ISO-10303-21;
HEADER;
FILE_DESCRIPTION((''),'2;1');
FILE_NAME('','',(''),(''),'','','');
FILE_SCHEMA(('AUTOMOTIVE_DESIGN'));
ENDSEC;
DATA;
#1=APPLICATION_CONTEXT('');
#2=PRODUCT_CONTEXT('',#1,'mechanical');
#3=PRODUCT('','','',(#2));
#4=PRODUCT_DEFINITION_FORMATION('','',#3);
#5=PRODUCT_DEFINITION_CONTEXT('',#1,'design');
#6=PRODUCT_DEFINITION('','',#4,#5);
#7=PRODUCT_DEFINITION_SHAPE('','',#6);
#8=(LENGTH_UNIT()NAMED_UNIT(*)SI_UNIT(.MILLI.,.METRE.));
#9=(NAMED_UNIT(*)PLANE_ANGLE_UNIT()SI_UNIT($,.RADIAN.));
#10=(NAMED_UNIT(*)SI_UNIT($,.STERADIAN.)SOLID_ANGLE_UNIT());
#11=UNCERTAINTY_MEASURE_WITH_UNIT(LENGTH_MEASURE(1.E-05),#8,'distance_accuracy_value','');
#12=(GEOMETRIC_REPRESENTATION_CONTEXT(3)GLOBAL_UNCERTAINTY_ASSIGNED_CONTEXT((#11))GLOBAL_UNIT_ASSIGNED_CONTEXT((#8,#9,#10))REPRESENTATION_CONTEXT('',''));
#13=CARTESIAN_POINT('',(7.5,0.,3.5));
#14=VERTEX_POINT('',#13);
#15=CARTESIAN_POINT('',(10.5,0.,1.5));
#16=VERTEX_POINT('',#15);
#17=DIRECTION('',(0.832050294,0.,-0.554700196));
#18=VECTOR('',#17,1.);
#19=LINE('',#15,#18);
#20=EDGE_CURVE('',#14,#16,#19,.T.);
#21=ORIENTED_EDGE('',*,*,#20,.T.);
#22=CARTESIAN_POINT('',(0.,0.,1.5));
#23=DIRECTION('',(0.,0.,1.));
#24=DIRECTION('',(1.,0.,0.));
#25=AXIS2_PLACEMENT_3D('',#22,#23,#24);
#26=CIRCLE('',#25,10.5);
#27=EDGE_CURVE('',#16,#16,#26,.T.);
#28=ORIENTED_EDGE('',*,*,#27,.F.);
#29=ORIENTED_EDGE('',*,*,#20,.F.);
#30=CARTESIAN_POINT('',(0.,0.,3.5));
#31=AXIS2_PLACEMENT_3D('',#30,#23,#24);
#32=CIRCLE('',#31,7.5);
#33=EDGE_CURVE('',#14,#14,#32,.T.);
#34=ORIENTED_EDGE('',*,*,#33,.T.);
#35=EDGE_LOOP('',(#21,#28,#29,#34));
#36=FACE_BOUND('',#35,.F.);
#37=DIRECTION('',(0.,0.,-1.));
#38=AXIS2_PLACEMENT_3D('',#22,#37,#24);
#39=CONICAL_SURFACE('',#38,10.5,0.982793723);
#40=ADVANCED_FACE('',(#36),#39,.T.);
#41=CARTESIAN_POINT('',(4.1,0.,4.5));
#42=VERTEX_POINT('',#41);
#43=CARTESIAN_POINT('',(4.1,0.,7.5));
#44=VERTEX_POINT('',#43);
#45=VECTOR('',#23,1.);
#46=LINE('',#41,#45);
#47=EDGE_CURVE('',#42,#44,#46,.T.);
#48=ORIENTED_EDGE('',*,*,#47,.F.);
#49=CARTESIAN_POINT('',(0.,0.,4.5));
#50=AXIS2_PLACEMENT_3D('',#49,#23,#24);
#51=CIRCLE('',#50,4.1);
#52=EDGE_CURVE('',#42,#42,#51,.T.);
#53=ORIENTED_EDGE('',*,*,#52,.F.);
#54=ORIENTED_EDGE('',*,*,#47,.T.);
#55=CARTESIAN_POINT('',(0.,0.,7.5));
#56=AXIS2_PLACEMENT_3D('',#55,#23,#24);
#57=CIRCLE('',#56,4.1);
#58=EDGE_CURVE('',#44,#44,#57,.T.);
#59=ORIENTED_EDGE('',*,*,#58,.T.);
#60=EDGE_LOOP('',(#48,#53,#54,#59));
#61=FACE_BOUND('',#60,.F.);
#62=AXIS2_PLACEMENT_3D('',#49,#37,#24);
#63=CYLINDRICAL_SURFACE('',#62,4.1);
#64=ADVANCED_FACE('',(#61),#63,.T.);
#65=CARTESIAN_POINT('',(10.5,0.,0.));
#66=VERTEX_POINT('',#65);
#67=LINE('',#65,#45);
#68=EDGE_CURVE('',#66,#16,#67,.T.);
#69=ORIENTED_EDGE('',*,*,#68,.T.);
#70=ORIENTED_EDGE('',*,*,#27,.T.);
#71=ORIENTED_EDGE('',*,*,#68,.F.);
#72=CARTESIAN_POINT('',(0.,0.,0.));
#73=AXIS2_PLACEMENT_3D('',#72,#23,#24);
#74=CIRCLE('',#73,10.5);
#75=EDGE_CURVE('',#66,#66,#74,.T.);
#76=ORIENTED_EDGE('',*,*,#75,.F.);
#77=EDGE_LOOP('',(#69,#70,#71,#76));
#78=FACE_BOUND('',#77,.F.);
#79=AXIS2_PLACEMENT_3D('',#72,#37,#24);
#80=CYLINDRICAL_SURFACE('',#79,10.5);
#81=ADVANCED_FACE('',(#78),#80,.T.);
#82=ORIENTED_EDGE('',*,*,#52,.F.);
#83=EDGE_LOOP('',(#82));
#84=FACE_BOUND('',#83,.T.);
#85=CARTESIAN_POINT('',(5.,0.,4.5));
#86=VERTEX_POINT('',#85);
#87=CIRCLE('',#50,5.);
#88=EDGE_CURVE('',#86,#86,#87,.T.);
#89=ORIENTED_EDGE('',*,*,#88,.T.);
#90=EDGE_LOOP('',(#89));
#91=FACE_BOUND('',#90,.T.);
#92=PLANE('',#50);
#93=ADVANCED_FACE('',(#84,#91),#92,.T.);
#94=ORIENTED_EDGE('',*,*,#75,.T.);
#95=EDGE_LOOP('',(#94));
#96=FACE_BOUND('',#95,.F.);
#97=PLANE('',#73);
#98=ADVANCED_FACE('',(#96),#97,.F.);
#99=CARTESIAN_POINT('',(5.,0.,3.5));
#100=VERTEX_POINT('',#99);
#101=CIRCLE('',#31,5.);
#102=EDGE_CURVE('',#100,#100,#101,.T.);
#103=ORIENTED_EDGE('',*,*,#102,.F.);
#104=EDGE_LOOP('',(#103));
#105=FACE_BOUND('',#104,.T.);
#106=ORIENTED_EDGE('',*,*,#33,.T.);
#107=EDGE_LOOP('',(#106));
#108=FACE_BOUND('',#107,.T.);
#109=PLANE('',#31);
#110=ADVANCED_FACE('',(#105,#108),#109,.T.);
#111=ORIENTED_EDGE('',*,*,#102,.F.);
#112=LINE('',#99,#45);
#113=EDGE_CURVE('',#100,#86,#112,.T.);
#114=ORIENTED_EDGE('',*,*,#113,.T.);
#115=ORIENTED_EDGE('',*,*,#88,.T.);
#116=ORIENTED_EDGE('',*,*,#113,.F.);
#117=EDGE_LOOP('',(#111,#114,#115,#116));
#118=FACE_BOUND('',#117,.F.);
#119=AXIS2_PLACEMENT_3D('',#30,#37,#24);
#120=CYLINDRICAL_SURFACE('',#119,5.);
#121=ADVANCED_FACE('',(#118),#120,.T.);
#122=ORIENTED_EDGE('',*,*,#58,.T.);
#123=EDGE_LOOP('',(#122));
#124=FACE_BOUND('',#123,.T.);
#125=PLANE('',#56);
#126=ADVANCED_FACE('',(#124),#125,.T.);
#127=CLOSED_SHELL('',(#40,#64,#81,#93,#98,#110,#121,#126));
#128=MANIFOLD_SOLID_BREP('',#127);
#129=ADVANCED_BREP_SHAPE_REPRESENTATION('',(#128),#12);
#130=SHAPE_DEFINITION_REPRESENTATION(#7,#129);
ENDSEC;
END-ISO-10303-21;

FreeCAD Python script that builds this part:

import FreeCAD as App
import Part
import Sketcher


def edges_at(feature, points):
    """Names of the edges that pass closest to the given points."""
    edges = feature.Shape.Edges
    near = lambda p: min(range(len(edges)), key=lambda i: edges[i].distToShape(Part.Vertex(*p))[0])
    return sorted({f"Edge{near(p) + 1}" for p in points})

doc = App.newDocument("Part")
params = doc.addObject("Spreadsheet::Sheet", "Params")
for row, (alias, value) in enumerate([
    ("sketch1_diameter", "21 mm"),
    ("pad1_length", "3.5 mm"),
    ("sketch2_diameter", "10 mm"),
    ("pad2_length", "1 mm"),
    ("sketch3_diameter", "8.2 mm"),
    ("pad3_length", "3 mm"),
    ("chamfer_size", "3 mm"),
    ("chamfer_size2", "2 mm"),
], start=1):
    params.set(f"A{row}", alias)
    params.set(f"B{row}", "=" + value)
    params.setAlias(f"B{row}", alias)

body = doc.addObject("PartDesign::Body", "Body")

# Sketch on XY plane
sketch1 = body.newObject("Sketcher::SketchObject", "Sketch")
sketch1.AttachmentSupport = (doc.getObject("XY_Plane"), [""])
sketch1.MapMode = "FlatFace"
sketch1.addGeometry(Part.Circle(App.Vector(0, 0, 0), App.Vector(0, 0, 1), 10), False)
sketch1.addConstraint(Sketcher.Constraint("Coincident", 0, 3, -1, 1))
sketch1.addConstraint(Sketcher.Constraint("Diameter", 0, 21.0))
sketch1.setExpression("Constraints[1]", "Params.sketch1_diameter")
pad1 = body.newObject("PartDesign::Pad", "Pad")
pad1.Profile = sketch1
pad1.setExpression("Length", "Params.pad1_length")

# Sketch on XY plane
sketch2 = body.newObject("Sketcher::SketchObject", "Sketch001")
sketch2.AttachmentSupport = (doc.getObject("XY_Plane"), [""])
sketch2.MapMode = "FlatFace"
sketch2.AttachmentOffset = App.Placement(App.Vector(0, 0, 3.5), App.Rotation())
sketch2.addGeometry(Part.Circle(App.Vector(0, 0, 0), App.Vector(0, 0, 1), 5), False)
sketch2.addConstraint(Sketcher.Constraint("Coincident", 0, 3, -1, 1))
sketch2.addConstraint(Sketcher.Constraint("Diameter", 0, 10.0))
sketch2.setExpression("Constraints[1]", "Params.sketch2_diameter")
pad2 = body.newObject("PartDesign::Pad", "Pad001")
pad2.Profile = sketch2
pad2.setExpression("Length", "Params.pad2_length")

# Sketch on XY plane
sketch3 = body.newObject("Sketcher::SketchObject", "Sketch002")
sketch3.AttachmentSupport = (doc.getObject("XY_Plane"), [""])
sketch3.MapMode = "FlatFace"
sketch3.AttachmentOffset = App.Placement(App.Vector(0, 0, 4.5), App.Rotation())
sketch3.addGeometry(Part.Circle(App.Vector(0, 0, 0), App.Vector(0, 0, 1), 4.1), False)
sketch3.addConstraint(Sketcher.Constraint("Coincident", 0, 3, -1, 1))
sketch3.addConstraint(Sketcher.Constraint("Diameter", 0, 8.2))
sketch3.setExpression("Constraints[1]", "Params.sketch3_diameter")
pad3 = body.newObject("PartDesign::Pad", "Pad002")
pad3.Profile = sketch3
pad3.setExpression("Length", "Params.pad3_length")
doc.recompute()

chamfer = body.newObject("PartDesign::Chamfer", "Chamfer")
chamfer.Base = (pad3, edges_at(pad3, [(-10.5, 0, 3.5)]))
chamfer.ChamferType = "Two distances"
chamfer.setExpression("Size", "Params.chamfer_size")
chamfer.setExpression("Size2", "Params.chamfer_size2")
chamfer.FlipDirection = True

doc.recompute()
